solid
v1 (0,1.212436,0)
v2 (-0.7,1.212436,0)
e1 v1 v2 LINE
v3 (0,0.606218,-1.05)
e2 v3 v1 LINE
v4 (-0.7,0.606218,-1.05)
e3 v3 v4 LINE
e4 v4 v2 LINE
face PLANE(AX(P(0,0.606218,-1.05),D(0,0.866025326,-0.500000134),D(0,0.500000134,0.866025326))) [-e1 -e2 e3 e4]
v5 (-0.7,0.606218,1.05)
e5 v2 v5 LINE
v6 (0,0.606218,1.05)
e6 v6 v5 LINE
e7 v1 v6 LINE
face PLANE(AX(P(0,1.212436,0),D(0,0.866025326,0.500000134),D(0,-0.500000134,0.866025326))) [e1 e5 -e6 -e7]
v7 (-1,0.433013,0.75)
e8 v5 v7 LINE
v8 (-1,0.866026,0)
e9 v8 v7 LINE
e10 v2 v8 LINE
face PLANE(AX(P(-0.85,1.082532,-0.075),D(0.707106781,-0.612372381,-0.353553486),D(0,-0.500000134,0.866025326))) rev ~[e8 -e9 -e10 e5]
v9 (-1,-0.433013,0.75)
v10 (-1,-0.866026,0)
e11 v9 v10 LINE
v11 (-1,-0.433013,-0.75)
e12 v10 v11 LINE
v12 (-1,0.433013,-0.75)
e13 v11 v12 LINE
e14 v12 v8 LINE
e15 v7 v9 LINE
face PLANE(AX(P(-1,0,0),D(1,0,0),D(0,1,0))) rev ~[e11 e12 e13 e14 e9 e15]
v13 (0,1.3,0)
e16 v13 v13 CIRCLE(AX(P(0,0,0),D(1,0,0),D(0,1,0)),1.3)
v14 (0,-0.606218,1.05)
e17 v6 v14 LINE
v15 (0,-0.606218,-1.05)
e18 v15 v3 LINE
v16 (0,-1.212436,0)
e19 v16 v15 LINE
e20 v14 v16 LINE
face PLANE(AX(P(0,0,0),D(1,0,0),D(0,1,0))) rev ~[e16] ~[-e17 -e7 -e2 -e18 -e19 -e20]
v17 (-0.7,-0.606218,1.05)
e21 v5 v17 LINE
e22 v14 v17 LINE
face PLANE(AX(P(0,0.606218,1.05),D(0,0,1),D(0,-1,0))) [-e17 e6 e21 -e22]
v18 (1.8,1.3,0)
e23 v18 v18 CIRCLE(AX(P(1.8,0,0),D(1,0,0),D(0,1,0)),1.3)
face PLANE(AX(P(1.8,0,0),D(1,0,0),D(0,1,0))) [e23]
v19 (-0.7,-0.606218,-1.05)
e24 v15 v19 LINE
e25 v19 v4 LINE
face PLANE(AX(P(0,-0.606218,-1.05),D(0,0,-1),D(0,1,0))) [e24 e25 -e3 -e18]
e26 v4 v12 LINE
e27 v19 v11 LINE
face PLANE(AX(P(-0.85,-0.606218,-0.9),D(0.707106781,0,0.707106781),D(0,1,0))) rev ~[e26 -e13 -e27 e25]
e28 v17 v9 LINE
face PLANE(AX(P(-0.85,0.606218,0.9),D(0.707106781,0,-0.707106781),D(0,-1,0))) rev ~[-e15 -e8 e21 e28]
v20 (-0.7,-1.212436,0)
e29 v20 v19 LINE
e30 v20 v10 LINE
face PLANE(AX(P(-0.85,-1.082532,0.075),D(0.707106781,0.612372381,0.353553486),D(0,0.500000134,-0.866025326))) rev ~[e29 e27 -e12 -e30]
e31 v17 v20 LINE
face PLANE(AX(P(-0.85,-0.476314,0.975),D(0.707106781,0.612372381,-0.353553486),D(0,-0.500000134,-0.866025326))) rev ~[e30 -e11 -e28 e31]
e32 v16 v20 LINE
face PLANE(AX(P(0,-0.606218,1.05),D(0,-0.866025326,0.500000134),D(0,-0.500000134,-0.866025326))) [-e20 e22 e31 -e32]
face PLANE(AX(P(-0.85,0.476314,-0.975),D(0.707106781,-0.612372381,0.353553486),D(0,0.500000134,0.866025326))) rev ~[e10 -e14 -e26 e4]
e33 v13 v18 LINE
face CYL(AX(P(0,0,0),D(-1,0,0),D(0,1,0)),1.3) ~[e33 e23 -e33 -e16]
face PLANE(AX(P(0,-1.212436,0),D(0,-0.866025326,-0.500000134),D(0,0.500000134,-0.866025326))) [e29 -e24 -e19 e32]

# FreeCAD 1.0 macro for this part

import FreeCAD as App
import Part
import Sketcher
from FreeCAD import Vector
Q = App.Units.Quantity


def edges_at(feature, points):
    """Names of the edges that pass closest to the given points."""
    edges = feature.Shape.Edges
    near = lambda p: min(range(len(edges)), key=lambda i: edges[i].distToShape(Part.Vertex(*p))[0])
    return sorted({f"Edge{near(p) + 1}" for p in points})

doc = App.newDocument("Part")
params = doc.addObject("Spreadsheet::Sheet", "Params")
for row, (alias, value) in enumerate([
    ("sketch1_diameter", "2.6 mm"),
    ("pad1_length", "1.8 mm"),
    ("pad2_length", "1 mm"),
    ("chamfer_size", "0.3 mm"),
], start=1):
    params.set(f"A{row}", alias)
    params.set(f"B{row}", "=" + value)
    params.setAlias(f"B{row}", alias)

body = doc.addObject("PartDesign::Body", "Body")

# Sketch on YZ plane
sketch1 = body.newObject("Sketcher::SketchObject", "Sketch")
sketch1.AttachmentSupport = (doc.getObject("YZ_Plane"), [""])
sketch1.MapMode = "FlatFace"
sketch1.addGeometry(Part.Circle(Vector(0, 0, 0), Vector(0, 0, 1), 1.3), False)
sketch1.addConstraint([
    Sketcher.Constraint("Coincident", 0, 3, -1, 1),
    Sketcher.Constraint("Diameter", 0, 2.6),
])
sketch1.setExpression("Constraints[1]", "Params.sketch1_diameter")
pad1 = body.newObject("PartDesign::Pad", "Pad")
pad1.Profile = sketch1
pad1.setExpression("Length", "Params.pad1_length")

# Sketch on YZ plane
sketch2 = body.newObject("Sketcher::SketchObject", "Sketch001")
sketch2.AttachmentSupport = (doc.getObject("YZ_Plane"), [""])
sketch2.MapMode = "FlatFace"
sketch2.addGeometry([
    Part.LineSegment(Vector(0.6, 1.1, 0), Vector(-0.6, 1.1, 0)),  # 0
    Part.LineSegment(Vector(-0.6, 1.1, 0), Vector(-1.2, 0, 0)),  # 1
    Part.LineSegment(Vector(-1.2, 0, 0), Vector(-0.6, -1.1, 0)),  # 2
    Part.LineSegment(Vector(-0.6, -1.1, 0), Vector(0.6, -1.1, 0)),  # 3
    Part.LineSegment(Vector(0.6, -1.1, 0), Vector(1.2, 0, 0)),  # 4
    Part.LineSegment(Vector(1.2, 0, 0), Vector(0.6, 1.1, 0)),  # 5
], False)
sketch2.addConstraint([
    Sketcher.Constraint("Coincident", 0, 2, 1, 1),
    Sketcher.Constraint("Coincident", 1, 2, 2, 1),
    Sketcher.Constraint("Coincident", 2, 2, 3, 1),
    Sketcher.Constraint("Coincident", 3, 2, 4, 1),
    Sketcher.Constraint("Coincident", 4, 2, 5, 1),
    Sketcher.Constraint("Coincident", 5, 2, 0, 1),
    Sketcher.Constraint("Horizontal", 0),
    Sketcher.Constraint("Horizontal", 3),
    Sketcher.Constraint("Symmetric", 0, 2, 3, 2, -1, 1),
    Sketcher.Constraint("Symmetric", 1, 2, 4, 2, -1, 1),
    Sketcher.Constraint("PointOnObject", 1, 2, -1),
    Sketcher.Constraint("Parallel", 2, 5),
    Sketcher.Constraint("Vertical", 0, 2, 2, 2),
    Sketcher.Constraint("Angle", 1, Q("-120.000009 deg")),
    Sketcher.Constraint("DistanceY", 2, 2, 0, 2, 2.1),
    Sketcher.Constraint("DistanceX", 0, 2, 0, 1, 1.212436),
])
pad2 = body.newObject("PartDesign::Pad", "Pad001")
pad2.Profile = sketch2
pad2.setExpression("Length", "Params.pad2_length")
pad2.Reversed = True
doc.recompute()

chamfer = body.newObject("PartDesign::Chamfer", "Chamfer")
chamfer.Base = (pad2, edges_at(pad2, [
    (-1, 0, 1.05),
    (-1, -0.909, 0.525),
    (-1, -0.909, -0.525),
    (-1, 0, -1.05),
    (-1, 0.909, -0.525),
    (-1, 0.909, 0.525),
]))
chamfer.setExpression("Size", "Params.chamfer_size")

doc.recompute()
